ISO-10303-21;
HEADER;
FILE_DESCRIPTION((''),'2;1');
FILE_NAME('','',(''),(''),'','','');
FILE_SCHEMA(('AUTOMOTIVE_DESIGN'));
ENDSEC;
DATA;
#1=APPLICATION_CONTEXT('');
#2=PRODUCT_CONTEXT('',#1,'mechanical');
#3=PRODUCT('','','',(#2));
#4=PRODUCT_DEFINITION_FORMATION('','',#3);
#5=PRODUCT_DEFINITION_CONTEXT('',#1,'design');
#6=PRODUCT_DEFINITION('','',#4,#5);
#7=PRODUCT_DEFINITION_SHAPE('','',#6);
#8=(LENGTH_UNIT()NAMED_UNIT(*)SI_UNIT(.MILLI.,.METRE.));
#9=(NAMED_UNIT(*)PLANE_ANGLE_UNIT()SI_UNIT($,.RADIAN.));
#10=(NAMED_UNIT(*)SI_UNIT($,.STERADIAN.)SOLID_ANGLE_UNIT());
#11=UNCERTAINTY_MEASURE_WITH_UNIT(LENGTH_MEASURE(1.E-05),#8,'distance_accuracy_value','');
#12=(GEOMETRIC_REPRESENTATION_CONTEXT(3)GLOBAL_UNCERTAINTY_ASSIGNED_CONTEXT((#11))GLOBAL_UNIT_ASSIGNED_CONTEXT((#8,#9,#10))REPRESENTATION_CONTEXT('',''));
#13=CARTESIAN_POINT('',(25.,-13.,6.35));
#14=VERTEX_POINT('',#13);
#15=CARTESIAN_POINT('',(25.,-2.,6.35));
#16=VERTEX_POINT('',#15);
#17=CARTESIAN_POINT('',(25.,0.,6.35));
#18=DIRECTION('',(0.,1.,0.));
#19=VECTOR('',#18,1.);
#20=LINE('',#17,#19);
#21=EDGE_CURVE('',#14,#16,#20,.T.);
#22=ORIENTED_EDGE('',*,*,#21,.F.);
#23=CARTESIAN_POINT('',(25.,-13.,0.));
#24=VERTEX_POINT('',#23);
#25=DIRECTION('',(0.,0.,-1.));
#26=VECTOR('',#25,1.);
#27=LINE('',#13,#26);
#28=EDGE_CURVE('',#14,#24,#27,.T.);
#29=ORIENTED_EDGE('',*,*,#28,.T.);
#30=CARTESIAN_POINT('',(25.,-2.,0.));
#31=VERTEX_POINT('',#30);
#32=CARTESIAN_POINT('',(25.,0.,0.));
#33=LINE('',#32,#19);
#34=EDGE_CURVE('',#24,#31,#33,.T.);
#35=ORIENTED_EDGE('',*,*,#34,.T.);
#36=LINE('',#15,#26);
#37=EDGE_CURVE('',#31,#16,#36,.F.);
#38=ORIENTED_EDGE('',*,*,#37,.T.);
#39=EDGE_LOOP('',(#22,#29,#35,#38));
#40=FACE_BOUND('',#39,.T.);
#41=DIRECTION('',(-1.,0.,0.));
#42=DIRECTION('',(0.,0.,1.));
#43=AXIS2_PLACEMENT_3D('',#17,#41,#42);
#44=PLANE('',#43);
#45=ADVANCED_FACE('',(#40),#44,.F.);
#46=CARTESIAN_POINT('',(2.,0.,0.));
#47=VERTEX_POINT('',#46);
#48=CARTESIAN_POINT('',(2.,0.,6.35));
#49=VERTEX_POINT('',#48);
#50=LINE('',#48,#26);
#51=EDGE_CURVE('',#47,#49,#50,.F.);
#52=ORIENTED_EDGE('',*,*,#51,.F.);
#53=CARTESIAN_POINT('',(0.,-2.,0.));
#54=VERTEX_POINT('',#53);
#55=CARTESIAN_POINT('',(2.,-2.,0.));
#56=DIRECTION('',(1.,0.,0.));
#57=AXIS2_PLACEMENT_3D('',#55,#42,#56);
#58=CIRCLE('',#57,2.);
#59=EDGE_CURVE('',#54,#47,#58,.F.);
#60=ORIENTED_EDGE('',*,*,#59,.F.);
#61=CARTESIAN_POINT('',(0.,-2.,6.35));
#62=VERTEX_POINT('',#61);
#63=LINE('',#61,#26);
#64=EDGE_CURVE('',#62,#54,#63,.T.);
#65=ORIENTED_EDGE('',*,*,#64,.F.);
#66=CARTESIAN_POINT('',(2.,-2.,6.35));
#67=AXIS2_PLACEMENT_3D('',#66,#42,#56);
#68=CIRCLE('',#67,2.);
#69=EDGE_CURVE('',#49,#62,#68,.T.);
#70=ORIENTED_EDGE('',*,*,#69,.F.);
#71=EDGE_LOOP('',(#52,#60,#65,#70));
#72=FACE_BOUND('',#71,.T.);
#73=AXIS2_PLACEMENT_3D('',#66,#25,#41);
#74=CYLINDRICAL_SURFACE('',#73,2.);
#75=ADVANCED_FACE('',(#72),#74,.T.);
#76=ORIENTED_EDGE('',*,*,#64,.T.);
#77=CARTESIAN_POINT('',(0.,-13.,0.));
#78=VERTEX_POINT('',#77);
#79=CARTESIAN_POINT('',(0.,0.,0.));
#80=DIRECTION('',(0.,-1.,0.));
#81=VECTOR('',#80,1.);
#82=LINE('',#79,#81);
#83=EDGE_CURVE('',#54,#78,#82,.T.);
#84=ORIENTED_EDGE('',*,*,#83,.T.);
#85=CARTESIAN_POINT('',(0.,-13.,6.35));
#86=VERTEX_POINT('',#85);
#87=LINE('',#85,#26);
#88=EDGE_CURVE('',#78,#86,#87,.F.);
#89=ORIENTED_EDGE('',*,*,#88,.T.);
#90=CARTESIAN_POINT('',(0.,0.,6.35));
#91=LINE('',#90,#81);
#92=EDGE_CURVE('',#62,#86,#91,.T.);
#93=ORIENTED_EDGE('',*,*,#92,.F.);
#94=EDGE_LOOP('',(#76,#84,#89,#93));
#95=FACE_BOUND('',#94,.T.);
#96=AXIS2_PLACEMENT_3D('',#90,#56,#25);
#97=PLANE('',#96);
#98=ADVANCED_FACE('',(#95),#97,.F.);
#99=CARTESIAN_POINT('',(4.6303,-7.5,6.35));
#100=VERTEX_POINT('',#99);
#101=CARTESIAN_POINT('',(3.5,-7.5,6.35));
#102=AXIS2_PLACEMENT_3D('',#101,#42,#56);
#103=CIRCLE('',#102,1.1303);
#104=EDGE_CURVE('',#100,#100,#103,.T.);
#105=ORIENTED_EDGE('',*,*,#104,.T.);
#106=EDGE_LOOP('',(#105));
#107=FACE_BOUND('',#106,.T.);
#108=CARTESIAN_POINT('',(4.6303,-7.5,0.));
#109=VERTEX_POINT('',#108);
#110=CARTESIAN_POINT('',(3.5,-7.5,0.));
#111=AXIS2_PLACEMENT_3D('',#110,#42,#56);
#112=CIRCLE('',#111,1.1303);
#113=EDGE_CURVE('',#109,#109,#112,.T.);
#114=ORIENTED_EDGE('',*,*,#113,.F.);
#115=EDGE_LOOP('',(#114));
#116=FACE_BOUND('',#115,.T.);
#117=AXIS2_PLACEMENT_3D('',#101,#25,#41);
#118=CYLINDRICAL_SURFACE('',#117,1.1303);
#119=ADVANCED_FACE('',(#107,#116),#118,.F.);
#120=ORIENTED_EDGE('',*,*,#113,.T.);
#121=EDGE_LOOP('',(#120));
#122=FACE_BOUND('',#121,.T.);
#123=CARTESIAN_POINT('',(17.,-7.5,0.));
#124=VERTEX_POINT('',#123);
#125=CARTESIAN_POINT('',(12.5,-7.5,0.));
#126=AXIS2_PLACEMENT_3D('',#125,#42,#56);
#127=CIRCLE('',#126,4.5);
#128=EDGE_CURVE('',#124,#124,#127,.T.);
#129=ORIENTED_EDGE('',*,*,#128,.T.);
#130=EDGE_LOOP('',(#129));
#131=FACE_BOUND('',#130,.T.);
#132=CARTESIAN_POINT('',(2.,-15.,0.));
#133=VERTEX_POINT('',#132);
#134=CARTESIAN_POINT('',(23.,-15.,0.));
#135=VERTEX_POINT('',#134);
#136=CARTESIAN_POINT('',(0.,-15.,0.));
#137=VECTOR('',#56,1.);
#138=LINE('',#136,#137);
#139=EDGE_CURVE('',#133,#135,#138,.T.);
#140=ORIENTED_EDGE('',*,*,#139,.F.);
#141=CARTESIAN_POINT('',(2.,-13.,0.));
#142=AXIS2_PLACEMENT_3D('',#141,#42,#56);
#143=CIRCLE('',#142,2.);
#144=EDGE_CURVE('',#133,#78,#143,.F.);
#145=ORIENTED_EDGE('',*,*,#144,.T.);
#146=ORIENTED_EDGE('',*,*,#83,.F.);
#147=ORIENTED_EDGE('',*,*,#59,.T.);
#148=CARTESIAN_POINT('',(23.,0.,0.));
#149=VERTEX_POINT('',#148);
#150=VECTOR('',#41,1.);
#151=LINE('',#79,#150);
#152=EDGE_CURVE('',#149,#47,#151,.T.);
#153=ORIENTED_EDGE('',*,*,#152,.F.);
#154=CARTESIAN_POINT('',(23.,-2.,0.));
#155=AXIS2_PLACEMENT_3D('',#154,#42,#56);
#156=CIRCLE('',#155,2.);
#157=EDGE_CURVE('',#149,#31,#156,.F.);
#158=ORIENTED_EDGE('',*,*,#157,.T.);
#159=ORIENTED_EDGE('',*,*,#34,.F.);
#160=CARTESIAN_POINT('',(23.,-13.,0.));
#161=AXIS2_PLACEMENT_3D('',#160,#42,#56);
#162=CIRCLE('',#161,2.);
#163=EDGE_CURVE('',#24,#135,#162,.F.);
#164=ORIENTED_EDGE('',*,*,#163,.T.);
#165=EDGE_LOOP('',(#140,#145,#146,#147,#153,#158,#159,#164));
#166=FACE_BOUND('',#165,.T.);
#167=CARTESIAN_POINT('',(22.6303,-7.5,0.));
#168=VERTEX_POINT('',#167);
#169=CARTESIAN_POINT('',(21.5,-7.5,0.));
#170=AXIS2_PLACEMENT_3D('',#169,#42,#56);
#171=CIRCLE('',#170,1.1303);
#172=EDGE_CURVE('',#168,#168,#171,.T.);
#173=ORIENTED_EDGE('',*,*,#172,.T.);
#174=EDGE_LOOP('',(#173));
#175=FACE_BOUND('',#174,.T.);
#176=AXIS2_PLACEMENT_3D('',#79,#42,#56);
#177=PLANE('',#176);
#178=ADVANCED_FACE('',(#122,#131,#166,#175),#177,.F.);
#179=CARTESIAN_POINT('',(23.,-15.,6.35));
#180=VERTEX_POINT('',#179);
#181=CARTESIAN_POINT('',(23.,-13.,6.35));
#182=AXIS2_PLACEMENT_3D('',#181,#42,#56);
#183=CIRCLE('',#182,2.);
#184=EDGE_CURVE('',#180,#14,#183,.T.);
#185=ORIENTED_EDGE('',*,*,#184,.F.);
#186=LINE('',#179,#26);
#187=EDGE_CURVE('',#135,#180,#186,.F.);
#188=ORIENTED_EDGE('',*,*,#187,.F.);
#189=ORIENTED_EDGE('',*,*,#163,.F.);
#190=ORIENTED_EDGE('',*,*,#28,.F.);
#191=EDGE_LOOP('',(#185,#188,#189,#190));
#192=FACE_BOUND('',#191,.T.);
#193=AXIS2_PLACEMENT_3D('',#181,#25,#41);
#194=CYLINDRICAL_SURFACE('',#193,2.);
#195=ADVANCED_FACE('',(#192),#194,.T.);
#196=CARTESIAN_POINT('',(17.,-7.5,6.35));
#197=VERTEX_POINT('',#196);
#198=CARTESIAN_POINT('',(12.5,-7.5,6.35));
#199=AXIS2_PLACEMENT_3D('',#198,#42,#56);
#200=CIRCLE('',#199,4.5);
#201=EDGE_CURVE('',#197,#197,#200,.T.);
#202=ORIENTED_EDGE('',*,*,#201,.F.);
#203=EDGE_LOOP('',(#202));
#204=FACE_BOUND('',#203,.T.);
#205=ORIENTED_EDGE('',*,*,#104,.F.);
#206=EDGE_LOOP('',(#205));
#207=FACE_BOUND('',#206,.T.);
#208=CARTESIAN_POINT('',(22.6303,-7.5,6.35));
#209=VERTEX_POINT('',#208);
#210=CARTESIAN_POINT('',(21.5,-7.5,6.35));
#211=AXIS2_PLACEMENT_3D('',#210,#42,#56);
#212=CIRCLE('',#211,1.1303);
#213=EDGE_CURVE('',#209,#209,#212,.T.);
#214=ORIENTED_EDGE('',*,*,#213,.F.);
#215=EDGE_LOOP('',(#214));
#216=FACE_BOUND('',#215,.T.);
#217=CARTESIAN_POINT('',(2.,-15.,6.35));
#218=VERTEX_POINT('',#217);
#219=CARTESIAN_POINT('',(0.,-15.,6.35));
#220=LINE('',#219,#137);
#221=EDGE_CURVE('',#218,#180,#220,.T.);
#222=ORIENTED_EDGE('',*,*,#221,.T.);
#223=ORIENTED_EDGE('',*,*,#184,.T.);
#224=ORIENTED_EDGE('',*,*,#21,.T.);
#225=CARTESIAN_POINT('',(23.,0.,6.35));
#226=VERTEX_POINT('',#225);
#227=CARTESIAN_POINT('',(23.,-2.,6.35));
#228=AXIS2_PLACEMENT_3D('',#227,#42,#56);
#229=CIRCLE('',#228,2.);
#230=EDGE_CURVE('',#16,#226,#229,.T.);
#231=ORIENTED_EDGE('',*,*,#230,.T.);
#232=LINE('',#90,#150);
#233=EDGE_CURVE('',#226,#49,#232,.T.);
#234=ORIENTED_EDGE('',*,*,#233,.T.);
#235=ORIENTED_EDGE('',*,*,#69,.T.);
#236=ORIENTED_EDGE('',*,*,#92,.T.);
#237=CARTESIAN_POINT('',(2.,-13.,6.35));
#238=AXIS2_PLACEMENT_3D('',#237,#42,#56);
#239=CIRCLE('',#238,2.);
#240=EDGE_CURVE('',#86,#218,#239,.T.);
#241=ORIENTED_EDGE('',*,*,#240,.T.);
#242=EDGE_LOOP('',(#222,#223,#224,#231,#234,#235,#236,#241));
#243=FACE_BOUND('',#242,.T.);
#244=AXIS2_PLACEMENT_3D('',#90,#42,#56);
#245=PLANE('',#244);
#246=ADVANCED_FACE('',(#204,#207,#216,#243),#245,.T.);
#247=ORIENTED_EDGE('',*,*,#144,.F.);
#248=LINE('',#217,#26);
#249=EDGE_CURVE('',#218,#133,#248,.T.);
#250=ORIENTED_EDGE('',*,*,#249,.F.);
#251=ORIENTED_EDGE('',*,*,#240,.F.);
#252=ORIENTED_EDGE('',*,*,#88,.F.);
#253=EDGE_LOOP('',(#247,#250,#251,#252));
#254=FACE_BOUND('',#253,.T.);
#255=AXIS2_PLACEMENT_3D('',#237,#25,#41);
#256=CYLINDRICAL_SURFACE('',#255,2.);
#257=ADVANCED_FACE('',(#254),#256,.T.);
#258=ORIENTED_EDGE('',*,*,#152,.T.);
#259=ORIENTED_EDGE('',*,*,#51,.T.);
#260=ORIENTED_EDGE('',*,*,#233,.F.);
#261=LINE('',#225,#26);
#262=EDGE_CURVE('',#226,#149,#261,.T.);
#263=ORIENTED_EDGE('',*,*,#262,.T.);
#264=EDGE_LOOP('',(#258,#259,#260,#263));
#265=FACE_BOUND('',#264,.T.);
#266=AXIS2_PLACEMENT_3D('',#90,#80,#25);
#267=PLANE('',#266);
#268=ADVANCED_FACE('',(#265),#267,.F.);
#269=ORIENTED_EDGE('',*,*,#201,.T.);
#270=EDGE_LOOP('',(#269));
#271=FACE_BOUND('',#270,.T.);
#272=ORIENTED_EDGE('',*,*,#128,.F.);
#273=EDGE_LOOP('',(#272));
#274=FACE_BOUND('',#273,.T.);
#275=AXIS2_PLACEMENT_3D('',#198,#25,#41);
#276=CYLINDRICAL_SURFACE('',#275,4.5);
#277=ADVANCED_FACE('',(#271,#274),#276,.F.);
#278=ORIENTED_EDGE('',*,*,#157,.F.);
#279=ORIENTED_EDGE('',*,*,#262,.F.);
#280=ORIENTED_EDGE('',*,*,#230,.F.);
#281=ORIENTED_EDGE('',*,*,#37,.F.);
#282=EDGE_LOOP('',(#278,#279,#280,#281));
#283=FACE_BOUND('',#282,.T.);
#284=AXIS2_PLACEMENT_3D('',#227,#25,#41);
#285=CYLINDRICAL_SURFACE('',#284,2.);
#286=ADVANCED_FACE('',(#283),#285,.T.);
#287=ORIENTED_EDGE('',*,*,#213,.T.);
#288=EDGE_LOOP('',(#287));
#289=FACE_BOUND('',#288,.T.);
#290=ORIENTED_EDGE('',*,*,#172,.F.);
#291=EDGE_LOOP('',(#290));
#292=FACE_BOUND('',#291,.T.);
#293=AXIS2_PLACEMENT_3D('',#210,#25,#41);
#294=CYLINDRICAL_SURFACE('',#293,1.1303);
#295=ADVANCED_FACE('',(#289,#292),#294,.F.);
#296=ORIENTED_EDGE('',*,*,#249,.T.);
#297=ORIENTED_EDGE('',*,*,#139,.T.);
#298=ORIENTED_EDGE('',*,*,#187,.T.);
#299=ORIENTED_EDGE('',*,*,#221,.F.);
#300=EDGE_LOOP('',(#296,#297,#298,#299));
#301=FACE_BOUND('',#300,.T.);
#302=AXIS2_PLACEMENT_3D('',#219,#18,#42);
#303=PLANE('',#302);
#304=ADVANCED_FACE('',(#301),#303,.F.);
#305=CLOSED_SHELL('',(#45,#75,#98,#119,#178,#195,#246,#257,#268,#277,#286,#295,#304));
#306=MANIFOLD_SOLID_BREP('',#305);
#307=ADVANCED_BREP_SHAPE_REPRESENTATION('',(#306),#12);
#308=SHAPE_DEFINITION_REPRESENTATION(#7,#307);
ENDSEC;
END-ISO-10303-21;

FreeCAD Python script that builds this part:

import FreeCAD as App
import Part
import Sketcher

V = App.Vector


def edges_at(feature, points):
    """Names of the edges that pass closest to the given points."""
    edges = feature.Shape.Edges
    near = lambda p: min(range(len(edges)), key=lambda i: edges[i].distToShape(Part.Vertex(*p))[0])
    return sorted({f"Edge{near(p) + 1}" for p in points})


def add_polygon(sketch, points):
    """Adds a closed chain of lines whose ends are joined by coincident constraints."""
    first, n = sketch.GeometryCount, len(points)
    for a, b in zip(points, points[1:] + points[:1]):
        sketch.addGeometry(Part.LineSegment(App.Vector(*a, 0), App.Vector(*b, 0)), False)
    for i in range(n):
        sketch.addConstraint(Sketcher.Constraint("Coincident", first + i, 2, first + (i + 1) % n, 1))

doc = App.newDocument("Part")
body = doc.addObject("PartDesign::Body", "Body")

sketch1 = body.newObject("Sketcher::SketchObject", "Sketch")
sketch1.AttachmentSupport = (doc.getObject("XY_Plane"), [""])
sketch1.MapMode = "FlatFace"
add_polygon(sketch1, [(0, 0), (0, -15), (25, -15), (25, 0)])
sketch1.addGeometry(Part.Circle(V(3.5, -7.5, 0), V(0, 0, 1), 1.1303), False)
sketch1.addGeometry(Part.Circle(V(12.5, -7.5, 0), V(0, 0, 1), 4.5), False)
sketch1.addGeometry(Part.Circle(V(21.5, -7.5, 0), V(0, 0, 1), 1.1303), False)
sketch1.addConstraint([
    Sketcher.Constraint("Vertical", 0),
    Sketcher.Constraint("Horizontal", 1),
    Sketcher.Constraint("Vertical", 2),
    Sketcher.Constraint("Horizontal", 3),
    Sketcher.Constraint("Coincident", 3, 2, -1, 1),
    Sketcher.Constraint("Equal", 4, 6),
    Sketcher.Constraint("Horizontal", 4, 3, 5, 3),
    Sketcher.Constraint("Horizontal", 5, 3, 6, 3),
    Sketcher.Constraint("Diameter", 5, 9.0),
    Sketcher.Constraint("DistanceX", 1, 1, 1, 2, 25.0),
    Sketcher.Constraint("DistanceY", 0, 2, 0, 1, 15.0),
    Sketcher.Constraint("DistanceX", 4, 3, 5, 3, 9.0),
    Sketcher.Constraint("DistanceX", 5, 3, 6, 3, 9.0),
    Sketcher.Constraint("Diameter", 4, 2.2606),
    Sketcher.Constraint("DistanceX", -1, 1, 4, 3, 3.5),
    Sketcher.Constraint("DistanceY", 4, 3, -1, 1, 7.5),
])
pad1 = body.newObject("PartDesign::Pad", "Pad")
pad1.Profile = sketch1
pad1.Length = 6.35

sketch2 = body.newObject("Sketcher::SketchObject", "Sketch001")
sketch2.AttachmentSupport = (doc.getObject("XY_Plane"), [""])
sketch2.MapMode = "FlatFace"
sketch2.AttachmentOffset = App.Placement(V(0, 0, 6.35), App.Rotation())
sketch2.addGeometry([
    Part.Circle(V(21.5, -7.5, 0), V(0, 0, 1), 1.1303),
    Part.Circle(V(3.5, -7.5, 0), V(0, 0, 1), 1.1303),
], False)
sketch2.addConstraint([
    Sketcher.Constraint("Equal", 0, 1),
    Sketcher.Constraint("Horizontal", 0, 3, 1, 3),
    Sketcher.Constraint("DistanceX", 1, 3, 0, 3, 18.0),
    Sketcher.Constraint("Diameter", 0, 2.2606),
    Sketcher.Constraint("DistanceX", -1, 1, 0, 3, 21.5),
    Sketcher.Constraint("DistanceY", 0, 3, -1, 1, 7.5),
])
doc.recompute()
hole = body.newObject("PartDesign::Hole", "Hole")
hole.Profile = sketch2
hole.ThreadType = "None"
hole.Diameter = 2.2606
hole.DepthType = "ThroughAll"
doc.recompute()

fillet = body.newObject("PartDesign::Fillet", "Fillet")
fillet.Base = (hole, edges_at(hole, [
    (0, 0, 3.175),
    (25, 0, 3.175),
    (25, -15, 3.175),
    (0, -15, 3.175),
]))
fillet.Radius = 2

doc.recompute()
